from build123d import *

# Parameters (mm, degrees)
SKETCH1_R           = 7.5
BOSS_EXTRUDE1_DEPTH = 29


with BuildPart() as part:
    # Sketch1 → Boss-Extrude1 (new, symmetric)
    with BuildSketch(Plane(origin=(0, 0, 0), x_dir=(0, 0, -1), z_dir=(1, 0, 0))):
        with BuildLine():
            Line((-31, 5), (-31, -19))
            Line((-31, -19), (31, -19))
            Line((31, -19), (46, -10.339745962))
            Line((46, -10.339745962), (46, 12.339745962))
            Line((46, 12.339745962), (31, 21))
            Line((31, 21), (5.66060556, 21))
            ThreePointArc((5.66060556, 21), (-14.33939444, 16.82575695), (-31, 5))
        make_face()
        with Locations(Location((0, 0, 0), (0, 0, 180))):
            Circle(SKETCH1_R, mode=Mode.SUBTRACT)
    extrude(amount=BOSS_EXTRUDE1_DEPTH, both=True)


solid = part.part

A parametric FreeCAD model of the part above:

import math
import FreeCAD as App
import Part
import Sketcher

V = App.Vector
Q = App.Units.Quantity

doc = App.newDocument("Part")
body = doc.addObject("PartDesign::Body", "Body")

sketch1 = body.newObject("Sketcher::SketchObject", "Sketch")
sketch1.AttachmentSupport = (doc.getObject("YZ_Plane"), [""])
sketch1.MapMode = "FlatFace"
sketch1.addGeometry(Part.LineSegment(V(5, 31, 0), V(-19, 31, 0)), False)
sketch1.addGeometry(Part.LineSegment(V(-19, 31, 0), V(-19, -31, 0)), False)
sketch1.addGeometry(Part.LineSegment(V(-19, -31, 0), V(-10.339746, -46, 0)), False)
sketch1.addGeometry(Part.LineSegment(V(-10.339746, -46, 0), V(12.339746, -46, 0)), False)
sketch1.addGeometry(Part.LineSegment(V(12.339746, -46, 0), V(21, -31, 0)), False)
sketch1.addGeometry(Part.LineSegment(V(21, -31, 0), V(21, -5.660606, 0)), False)
sketch1.addGeometry(Part.ArcOfCircle(Part.Circle(V(-29, -5.660606, 0), V(0, 0, 1), 50), math.radians(0), math.radians(47.156357)), False)
sketch1.addGeometry(Part.Circle(V(0, 0, 0), V(0, 0, 1), 7.5), False)
sketch1.addConstraint(Sketcher.Constraint("Coincident", 0, 2, 1, 1))
sketch1.addConstraint(Sketcher.Constraint("Coincident", 1, 2, 2, 1))
sketch1.addConstraint(Sketcher.Constraint("Coincident", 2, 2, 3, 1))
sketch1.addConstraint(Sketcher.Constraint("Coincident", 3, 2, 4, 1))
sketch1.addConstraint(Sketcher.Constraint("Coincident", 4, 2, 5, 1))
sketch1.addConstraint(Sketcher.Constraint("Tangent", 5, 2, 6, 1))
sketch1.addConstraint(Sketcher.Constraint("Coincident", 6, 2, 0, 1))
sketch1.addConstraint(Sketcher.Constraint("Horizontal", 0))
sketch1.addConstraint(Sketcher.Constraint("Vertical", 1))
sketch1.addConstraint(Sketcher.Constraint("Horizontal", 3))
sketch1.addConstraint(Sketcher.Constraint("Vertical", 5))
sketch1.addConstraint(Sketcher.Constraint("Coincident", 7, 3, -1, 1))
sketch1.addConstraint(Sketcher.Constraint("Horizontal", 1, 2, 4, 2))
sketch1.addConstraint(Sketcher.Constraint("Equal", 2, 4))
sketch1.addConstraint(Sketcher.Constraint("Diameter", 7, 15.0))
sketch1.addConstraint(Sketcher.Constraint("Radius", 6, 50.0))
sketch1.addConstraint(Sketcher.Constraint("DistanceX", 0, 2, 0, 1, 24.0))
sketch1.addConstraint(Sketcher.Constraint("DistanceY", 1, 2, 1, 1, 62.0))
sketch1.addConstraint(Sketcher.Constraint("Angle", 2, Q("-60 deg")))
sketch1.addConstraint(Sketcher.Constraint("DistanceX", 6, 3, -1, 1, 29.0))
sketch1.addConstraint(Sketcher.Constraint("DistanceX", 0, 2, -1, 1, 19.0))
sketch1.addConstraint(Sketcher.Constraint("DistanceY", -1, 1, 0, 2, 31.0))
sketch1.addConstraint(Sketcher.Constraint("DistanceY", 2, 2, -1, 1, 46.0))
pad1 = body.newObject("PartDesign::Pad", "Pad")
pad1.Profile = sketch1
pad1.Length = 58
pad1.Midplane = True

doc.recompute()
